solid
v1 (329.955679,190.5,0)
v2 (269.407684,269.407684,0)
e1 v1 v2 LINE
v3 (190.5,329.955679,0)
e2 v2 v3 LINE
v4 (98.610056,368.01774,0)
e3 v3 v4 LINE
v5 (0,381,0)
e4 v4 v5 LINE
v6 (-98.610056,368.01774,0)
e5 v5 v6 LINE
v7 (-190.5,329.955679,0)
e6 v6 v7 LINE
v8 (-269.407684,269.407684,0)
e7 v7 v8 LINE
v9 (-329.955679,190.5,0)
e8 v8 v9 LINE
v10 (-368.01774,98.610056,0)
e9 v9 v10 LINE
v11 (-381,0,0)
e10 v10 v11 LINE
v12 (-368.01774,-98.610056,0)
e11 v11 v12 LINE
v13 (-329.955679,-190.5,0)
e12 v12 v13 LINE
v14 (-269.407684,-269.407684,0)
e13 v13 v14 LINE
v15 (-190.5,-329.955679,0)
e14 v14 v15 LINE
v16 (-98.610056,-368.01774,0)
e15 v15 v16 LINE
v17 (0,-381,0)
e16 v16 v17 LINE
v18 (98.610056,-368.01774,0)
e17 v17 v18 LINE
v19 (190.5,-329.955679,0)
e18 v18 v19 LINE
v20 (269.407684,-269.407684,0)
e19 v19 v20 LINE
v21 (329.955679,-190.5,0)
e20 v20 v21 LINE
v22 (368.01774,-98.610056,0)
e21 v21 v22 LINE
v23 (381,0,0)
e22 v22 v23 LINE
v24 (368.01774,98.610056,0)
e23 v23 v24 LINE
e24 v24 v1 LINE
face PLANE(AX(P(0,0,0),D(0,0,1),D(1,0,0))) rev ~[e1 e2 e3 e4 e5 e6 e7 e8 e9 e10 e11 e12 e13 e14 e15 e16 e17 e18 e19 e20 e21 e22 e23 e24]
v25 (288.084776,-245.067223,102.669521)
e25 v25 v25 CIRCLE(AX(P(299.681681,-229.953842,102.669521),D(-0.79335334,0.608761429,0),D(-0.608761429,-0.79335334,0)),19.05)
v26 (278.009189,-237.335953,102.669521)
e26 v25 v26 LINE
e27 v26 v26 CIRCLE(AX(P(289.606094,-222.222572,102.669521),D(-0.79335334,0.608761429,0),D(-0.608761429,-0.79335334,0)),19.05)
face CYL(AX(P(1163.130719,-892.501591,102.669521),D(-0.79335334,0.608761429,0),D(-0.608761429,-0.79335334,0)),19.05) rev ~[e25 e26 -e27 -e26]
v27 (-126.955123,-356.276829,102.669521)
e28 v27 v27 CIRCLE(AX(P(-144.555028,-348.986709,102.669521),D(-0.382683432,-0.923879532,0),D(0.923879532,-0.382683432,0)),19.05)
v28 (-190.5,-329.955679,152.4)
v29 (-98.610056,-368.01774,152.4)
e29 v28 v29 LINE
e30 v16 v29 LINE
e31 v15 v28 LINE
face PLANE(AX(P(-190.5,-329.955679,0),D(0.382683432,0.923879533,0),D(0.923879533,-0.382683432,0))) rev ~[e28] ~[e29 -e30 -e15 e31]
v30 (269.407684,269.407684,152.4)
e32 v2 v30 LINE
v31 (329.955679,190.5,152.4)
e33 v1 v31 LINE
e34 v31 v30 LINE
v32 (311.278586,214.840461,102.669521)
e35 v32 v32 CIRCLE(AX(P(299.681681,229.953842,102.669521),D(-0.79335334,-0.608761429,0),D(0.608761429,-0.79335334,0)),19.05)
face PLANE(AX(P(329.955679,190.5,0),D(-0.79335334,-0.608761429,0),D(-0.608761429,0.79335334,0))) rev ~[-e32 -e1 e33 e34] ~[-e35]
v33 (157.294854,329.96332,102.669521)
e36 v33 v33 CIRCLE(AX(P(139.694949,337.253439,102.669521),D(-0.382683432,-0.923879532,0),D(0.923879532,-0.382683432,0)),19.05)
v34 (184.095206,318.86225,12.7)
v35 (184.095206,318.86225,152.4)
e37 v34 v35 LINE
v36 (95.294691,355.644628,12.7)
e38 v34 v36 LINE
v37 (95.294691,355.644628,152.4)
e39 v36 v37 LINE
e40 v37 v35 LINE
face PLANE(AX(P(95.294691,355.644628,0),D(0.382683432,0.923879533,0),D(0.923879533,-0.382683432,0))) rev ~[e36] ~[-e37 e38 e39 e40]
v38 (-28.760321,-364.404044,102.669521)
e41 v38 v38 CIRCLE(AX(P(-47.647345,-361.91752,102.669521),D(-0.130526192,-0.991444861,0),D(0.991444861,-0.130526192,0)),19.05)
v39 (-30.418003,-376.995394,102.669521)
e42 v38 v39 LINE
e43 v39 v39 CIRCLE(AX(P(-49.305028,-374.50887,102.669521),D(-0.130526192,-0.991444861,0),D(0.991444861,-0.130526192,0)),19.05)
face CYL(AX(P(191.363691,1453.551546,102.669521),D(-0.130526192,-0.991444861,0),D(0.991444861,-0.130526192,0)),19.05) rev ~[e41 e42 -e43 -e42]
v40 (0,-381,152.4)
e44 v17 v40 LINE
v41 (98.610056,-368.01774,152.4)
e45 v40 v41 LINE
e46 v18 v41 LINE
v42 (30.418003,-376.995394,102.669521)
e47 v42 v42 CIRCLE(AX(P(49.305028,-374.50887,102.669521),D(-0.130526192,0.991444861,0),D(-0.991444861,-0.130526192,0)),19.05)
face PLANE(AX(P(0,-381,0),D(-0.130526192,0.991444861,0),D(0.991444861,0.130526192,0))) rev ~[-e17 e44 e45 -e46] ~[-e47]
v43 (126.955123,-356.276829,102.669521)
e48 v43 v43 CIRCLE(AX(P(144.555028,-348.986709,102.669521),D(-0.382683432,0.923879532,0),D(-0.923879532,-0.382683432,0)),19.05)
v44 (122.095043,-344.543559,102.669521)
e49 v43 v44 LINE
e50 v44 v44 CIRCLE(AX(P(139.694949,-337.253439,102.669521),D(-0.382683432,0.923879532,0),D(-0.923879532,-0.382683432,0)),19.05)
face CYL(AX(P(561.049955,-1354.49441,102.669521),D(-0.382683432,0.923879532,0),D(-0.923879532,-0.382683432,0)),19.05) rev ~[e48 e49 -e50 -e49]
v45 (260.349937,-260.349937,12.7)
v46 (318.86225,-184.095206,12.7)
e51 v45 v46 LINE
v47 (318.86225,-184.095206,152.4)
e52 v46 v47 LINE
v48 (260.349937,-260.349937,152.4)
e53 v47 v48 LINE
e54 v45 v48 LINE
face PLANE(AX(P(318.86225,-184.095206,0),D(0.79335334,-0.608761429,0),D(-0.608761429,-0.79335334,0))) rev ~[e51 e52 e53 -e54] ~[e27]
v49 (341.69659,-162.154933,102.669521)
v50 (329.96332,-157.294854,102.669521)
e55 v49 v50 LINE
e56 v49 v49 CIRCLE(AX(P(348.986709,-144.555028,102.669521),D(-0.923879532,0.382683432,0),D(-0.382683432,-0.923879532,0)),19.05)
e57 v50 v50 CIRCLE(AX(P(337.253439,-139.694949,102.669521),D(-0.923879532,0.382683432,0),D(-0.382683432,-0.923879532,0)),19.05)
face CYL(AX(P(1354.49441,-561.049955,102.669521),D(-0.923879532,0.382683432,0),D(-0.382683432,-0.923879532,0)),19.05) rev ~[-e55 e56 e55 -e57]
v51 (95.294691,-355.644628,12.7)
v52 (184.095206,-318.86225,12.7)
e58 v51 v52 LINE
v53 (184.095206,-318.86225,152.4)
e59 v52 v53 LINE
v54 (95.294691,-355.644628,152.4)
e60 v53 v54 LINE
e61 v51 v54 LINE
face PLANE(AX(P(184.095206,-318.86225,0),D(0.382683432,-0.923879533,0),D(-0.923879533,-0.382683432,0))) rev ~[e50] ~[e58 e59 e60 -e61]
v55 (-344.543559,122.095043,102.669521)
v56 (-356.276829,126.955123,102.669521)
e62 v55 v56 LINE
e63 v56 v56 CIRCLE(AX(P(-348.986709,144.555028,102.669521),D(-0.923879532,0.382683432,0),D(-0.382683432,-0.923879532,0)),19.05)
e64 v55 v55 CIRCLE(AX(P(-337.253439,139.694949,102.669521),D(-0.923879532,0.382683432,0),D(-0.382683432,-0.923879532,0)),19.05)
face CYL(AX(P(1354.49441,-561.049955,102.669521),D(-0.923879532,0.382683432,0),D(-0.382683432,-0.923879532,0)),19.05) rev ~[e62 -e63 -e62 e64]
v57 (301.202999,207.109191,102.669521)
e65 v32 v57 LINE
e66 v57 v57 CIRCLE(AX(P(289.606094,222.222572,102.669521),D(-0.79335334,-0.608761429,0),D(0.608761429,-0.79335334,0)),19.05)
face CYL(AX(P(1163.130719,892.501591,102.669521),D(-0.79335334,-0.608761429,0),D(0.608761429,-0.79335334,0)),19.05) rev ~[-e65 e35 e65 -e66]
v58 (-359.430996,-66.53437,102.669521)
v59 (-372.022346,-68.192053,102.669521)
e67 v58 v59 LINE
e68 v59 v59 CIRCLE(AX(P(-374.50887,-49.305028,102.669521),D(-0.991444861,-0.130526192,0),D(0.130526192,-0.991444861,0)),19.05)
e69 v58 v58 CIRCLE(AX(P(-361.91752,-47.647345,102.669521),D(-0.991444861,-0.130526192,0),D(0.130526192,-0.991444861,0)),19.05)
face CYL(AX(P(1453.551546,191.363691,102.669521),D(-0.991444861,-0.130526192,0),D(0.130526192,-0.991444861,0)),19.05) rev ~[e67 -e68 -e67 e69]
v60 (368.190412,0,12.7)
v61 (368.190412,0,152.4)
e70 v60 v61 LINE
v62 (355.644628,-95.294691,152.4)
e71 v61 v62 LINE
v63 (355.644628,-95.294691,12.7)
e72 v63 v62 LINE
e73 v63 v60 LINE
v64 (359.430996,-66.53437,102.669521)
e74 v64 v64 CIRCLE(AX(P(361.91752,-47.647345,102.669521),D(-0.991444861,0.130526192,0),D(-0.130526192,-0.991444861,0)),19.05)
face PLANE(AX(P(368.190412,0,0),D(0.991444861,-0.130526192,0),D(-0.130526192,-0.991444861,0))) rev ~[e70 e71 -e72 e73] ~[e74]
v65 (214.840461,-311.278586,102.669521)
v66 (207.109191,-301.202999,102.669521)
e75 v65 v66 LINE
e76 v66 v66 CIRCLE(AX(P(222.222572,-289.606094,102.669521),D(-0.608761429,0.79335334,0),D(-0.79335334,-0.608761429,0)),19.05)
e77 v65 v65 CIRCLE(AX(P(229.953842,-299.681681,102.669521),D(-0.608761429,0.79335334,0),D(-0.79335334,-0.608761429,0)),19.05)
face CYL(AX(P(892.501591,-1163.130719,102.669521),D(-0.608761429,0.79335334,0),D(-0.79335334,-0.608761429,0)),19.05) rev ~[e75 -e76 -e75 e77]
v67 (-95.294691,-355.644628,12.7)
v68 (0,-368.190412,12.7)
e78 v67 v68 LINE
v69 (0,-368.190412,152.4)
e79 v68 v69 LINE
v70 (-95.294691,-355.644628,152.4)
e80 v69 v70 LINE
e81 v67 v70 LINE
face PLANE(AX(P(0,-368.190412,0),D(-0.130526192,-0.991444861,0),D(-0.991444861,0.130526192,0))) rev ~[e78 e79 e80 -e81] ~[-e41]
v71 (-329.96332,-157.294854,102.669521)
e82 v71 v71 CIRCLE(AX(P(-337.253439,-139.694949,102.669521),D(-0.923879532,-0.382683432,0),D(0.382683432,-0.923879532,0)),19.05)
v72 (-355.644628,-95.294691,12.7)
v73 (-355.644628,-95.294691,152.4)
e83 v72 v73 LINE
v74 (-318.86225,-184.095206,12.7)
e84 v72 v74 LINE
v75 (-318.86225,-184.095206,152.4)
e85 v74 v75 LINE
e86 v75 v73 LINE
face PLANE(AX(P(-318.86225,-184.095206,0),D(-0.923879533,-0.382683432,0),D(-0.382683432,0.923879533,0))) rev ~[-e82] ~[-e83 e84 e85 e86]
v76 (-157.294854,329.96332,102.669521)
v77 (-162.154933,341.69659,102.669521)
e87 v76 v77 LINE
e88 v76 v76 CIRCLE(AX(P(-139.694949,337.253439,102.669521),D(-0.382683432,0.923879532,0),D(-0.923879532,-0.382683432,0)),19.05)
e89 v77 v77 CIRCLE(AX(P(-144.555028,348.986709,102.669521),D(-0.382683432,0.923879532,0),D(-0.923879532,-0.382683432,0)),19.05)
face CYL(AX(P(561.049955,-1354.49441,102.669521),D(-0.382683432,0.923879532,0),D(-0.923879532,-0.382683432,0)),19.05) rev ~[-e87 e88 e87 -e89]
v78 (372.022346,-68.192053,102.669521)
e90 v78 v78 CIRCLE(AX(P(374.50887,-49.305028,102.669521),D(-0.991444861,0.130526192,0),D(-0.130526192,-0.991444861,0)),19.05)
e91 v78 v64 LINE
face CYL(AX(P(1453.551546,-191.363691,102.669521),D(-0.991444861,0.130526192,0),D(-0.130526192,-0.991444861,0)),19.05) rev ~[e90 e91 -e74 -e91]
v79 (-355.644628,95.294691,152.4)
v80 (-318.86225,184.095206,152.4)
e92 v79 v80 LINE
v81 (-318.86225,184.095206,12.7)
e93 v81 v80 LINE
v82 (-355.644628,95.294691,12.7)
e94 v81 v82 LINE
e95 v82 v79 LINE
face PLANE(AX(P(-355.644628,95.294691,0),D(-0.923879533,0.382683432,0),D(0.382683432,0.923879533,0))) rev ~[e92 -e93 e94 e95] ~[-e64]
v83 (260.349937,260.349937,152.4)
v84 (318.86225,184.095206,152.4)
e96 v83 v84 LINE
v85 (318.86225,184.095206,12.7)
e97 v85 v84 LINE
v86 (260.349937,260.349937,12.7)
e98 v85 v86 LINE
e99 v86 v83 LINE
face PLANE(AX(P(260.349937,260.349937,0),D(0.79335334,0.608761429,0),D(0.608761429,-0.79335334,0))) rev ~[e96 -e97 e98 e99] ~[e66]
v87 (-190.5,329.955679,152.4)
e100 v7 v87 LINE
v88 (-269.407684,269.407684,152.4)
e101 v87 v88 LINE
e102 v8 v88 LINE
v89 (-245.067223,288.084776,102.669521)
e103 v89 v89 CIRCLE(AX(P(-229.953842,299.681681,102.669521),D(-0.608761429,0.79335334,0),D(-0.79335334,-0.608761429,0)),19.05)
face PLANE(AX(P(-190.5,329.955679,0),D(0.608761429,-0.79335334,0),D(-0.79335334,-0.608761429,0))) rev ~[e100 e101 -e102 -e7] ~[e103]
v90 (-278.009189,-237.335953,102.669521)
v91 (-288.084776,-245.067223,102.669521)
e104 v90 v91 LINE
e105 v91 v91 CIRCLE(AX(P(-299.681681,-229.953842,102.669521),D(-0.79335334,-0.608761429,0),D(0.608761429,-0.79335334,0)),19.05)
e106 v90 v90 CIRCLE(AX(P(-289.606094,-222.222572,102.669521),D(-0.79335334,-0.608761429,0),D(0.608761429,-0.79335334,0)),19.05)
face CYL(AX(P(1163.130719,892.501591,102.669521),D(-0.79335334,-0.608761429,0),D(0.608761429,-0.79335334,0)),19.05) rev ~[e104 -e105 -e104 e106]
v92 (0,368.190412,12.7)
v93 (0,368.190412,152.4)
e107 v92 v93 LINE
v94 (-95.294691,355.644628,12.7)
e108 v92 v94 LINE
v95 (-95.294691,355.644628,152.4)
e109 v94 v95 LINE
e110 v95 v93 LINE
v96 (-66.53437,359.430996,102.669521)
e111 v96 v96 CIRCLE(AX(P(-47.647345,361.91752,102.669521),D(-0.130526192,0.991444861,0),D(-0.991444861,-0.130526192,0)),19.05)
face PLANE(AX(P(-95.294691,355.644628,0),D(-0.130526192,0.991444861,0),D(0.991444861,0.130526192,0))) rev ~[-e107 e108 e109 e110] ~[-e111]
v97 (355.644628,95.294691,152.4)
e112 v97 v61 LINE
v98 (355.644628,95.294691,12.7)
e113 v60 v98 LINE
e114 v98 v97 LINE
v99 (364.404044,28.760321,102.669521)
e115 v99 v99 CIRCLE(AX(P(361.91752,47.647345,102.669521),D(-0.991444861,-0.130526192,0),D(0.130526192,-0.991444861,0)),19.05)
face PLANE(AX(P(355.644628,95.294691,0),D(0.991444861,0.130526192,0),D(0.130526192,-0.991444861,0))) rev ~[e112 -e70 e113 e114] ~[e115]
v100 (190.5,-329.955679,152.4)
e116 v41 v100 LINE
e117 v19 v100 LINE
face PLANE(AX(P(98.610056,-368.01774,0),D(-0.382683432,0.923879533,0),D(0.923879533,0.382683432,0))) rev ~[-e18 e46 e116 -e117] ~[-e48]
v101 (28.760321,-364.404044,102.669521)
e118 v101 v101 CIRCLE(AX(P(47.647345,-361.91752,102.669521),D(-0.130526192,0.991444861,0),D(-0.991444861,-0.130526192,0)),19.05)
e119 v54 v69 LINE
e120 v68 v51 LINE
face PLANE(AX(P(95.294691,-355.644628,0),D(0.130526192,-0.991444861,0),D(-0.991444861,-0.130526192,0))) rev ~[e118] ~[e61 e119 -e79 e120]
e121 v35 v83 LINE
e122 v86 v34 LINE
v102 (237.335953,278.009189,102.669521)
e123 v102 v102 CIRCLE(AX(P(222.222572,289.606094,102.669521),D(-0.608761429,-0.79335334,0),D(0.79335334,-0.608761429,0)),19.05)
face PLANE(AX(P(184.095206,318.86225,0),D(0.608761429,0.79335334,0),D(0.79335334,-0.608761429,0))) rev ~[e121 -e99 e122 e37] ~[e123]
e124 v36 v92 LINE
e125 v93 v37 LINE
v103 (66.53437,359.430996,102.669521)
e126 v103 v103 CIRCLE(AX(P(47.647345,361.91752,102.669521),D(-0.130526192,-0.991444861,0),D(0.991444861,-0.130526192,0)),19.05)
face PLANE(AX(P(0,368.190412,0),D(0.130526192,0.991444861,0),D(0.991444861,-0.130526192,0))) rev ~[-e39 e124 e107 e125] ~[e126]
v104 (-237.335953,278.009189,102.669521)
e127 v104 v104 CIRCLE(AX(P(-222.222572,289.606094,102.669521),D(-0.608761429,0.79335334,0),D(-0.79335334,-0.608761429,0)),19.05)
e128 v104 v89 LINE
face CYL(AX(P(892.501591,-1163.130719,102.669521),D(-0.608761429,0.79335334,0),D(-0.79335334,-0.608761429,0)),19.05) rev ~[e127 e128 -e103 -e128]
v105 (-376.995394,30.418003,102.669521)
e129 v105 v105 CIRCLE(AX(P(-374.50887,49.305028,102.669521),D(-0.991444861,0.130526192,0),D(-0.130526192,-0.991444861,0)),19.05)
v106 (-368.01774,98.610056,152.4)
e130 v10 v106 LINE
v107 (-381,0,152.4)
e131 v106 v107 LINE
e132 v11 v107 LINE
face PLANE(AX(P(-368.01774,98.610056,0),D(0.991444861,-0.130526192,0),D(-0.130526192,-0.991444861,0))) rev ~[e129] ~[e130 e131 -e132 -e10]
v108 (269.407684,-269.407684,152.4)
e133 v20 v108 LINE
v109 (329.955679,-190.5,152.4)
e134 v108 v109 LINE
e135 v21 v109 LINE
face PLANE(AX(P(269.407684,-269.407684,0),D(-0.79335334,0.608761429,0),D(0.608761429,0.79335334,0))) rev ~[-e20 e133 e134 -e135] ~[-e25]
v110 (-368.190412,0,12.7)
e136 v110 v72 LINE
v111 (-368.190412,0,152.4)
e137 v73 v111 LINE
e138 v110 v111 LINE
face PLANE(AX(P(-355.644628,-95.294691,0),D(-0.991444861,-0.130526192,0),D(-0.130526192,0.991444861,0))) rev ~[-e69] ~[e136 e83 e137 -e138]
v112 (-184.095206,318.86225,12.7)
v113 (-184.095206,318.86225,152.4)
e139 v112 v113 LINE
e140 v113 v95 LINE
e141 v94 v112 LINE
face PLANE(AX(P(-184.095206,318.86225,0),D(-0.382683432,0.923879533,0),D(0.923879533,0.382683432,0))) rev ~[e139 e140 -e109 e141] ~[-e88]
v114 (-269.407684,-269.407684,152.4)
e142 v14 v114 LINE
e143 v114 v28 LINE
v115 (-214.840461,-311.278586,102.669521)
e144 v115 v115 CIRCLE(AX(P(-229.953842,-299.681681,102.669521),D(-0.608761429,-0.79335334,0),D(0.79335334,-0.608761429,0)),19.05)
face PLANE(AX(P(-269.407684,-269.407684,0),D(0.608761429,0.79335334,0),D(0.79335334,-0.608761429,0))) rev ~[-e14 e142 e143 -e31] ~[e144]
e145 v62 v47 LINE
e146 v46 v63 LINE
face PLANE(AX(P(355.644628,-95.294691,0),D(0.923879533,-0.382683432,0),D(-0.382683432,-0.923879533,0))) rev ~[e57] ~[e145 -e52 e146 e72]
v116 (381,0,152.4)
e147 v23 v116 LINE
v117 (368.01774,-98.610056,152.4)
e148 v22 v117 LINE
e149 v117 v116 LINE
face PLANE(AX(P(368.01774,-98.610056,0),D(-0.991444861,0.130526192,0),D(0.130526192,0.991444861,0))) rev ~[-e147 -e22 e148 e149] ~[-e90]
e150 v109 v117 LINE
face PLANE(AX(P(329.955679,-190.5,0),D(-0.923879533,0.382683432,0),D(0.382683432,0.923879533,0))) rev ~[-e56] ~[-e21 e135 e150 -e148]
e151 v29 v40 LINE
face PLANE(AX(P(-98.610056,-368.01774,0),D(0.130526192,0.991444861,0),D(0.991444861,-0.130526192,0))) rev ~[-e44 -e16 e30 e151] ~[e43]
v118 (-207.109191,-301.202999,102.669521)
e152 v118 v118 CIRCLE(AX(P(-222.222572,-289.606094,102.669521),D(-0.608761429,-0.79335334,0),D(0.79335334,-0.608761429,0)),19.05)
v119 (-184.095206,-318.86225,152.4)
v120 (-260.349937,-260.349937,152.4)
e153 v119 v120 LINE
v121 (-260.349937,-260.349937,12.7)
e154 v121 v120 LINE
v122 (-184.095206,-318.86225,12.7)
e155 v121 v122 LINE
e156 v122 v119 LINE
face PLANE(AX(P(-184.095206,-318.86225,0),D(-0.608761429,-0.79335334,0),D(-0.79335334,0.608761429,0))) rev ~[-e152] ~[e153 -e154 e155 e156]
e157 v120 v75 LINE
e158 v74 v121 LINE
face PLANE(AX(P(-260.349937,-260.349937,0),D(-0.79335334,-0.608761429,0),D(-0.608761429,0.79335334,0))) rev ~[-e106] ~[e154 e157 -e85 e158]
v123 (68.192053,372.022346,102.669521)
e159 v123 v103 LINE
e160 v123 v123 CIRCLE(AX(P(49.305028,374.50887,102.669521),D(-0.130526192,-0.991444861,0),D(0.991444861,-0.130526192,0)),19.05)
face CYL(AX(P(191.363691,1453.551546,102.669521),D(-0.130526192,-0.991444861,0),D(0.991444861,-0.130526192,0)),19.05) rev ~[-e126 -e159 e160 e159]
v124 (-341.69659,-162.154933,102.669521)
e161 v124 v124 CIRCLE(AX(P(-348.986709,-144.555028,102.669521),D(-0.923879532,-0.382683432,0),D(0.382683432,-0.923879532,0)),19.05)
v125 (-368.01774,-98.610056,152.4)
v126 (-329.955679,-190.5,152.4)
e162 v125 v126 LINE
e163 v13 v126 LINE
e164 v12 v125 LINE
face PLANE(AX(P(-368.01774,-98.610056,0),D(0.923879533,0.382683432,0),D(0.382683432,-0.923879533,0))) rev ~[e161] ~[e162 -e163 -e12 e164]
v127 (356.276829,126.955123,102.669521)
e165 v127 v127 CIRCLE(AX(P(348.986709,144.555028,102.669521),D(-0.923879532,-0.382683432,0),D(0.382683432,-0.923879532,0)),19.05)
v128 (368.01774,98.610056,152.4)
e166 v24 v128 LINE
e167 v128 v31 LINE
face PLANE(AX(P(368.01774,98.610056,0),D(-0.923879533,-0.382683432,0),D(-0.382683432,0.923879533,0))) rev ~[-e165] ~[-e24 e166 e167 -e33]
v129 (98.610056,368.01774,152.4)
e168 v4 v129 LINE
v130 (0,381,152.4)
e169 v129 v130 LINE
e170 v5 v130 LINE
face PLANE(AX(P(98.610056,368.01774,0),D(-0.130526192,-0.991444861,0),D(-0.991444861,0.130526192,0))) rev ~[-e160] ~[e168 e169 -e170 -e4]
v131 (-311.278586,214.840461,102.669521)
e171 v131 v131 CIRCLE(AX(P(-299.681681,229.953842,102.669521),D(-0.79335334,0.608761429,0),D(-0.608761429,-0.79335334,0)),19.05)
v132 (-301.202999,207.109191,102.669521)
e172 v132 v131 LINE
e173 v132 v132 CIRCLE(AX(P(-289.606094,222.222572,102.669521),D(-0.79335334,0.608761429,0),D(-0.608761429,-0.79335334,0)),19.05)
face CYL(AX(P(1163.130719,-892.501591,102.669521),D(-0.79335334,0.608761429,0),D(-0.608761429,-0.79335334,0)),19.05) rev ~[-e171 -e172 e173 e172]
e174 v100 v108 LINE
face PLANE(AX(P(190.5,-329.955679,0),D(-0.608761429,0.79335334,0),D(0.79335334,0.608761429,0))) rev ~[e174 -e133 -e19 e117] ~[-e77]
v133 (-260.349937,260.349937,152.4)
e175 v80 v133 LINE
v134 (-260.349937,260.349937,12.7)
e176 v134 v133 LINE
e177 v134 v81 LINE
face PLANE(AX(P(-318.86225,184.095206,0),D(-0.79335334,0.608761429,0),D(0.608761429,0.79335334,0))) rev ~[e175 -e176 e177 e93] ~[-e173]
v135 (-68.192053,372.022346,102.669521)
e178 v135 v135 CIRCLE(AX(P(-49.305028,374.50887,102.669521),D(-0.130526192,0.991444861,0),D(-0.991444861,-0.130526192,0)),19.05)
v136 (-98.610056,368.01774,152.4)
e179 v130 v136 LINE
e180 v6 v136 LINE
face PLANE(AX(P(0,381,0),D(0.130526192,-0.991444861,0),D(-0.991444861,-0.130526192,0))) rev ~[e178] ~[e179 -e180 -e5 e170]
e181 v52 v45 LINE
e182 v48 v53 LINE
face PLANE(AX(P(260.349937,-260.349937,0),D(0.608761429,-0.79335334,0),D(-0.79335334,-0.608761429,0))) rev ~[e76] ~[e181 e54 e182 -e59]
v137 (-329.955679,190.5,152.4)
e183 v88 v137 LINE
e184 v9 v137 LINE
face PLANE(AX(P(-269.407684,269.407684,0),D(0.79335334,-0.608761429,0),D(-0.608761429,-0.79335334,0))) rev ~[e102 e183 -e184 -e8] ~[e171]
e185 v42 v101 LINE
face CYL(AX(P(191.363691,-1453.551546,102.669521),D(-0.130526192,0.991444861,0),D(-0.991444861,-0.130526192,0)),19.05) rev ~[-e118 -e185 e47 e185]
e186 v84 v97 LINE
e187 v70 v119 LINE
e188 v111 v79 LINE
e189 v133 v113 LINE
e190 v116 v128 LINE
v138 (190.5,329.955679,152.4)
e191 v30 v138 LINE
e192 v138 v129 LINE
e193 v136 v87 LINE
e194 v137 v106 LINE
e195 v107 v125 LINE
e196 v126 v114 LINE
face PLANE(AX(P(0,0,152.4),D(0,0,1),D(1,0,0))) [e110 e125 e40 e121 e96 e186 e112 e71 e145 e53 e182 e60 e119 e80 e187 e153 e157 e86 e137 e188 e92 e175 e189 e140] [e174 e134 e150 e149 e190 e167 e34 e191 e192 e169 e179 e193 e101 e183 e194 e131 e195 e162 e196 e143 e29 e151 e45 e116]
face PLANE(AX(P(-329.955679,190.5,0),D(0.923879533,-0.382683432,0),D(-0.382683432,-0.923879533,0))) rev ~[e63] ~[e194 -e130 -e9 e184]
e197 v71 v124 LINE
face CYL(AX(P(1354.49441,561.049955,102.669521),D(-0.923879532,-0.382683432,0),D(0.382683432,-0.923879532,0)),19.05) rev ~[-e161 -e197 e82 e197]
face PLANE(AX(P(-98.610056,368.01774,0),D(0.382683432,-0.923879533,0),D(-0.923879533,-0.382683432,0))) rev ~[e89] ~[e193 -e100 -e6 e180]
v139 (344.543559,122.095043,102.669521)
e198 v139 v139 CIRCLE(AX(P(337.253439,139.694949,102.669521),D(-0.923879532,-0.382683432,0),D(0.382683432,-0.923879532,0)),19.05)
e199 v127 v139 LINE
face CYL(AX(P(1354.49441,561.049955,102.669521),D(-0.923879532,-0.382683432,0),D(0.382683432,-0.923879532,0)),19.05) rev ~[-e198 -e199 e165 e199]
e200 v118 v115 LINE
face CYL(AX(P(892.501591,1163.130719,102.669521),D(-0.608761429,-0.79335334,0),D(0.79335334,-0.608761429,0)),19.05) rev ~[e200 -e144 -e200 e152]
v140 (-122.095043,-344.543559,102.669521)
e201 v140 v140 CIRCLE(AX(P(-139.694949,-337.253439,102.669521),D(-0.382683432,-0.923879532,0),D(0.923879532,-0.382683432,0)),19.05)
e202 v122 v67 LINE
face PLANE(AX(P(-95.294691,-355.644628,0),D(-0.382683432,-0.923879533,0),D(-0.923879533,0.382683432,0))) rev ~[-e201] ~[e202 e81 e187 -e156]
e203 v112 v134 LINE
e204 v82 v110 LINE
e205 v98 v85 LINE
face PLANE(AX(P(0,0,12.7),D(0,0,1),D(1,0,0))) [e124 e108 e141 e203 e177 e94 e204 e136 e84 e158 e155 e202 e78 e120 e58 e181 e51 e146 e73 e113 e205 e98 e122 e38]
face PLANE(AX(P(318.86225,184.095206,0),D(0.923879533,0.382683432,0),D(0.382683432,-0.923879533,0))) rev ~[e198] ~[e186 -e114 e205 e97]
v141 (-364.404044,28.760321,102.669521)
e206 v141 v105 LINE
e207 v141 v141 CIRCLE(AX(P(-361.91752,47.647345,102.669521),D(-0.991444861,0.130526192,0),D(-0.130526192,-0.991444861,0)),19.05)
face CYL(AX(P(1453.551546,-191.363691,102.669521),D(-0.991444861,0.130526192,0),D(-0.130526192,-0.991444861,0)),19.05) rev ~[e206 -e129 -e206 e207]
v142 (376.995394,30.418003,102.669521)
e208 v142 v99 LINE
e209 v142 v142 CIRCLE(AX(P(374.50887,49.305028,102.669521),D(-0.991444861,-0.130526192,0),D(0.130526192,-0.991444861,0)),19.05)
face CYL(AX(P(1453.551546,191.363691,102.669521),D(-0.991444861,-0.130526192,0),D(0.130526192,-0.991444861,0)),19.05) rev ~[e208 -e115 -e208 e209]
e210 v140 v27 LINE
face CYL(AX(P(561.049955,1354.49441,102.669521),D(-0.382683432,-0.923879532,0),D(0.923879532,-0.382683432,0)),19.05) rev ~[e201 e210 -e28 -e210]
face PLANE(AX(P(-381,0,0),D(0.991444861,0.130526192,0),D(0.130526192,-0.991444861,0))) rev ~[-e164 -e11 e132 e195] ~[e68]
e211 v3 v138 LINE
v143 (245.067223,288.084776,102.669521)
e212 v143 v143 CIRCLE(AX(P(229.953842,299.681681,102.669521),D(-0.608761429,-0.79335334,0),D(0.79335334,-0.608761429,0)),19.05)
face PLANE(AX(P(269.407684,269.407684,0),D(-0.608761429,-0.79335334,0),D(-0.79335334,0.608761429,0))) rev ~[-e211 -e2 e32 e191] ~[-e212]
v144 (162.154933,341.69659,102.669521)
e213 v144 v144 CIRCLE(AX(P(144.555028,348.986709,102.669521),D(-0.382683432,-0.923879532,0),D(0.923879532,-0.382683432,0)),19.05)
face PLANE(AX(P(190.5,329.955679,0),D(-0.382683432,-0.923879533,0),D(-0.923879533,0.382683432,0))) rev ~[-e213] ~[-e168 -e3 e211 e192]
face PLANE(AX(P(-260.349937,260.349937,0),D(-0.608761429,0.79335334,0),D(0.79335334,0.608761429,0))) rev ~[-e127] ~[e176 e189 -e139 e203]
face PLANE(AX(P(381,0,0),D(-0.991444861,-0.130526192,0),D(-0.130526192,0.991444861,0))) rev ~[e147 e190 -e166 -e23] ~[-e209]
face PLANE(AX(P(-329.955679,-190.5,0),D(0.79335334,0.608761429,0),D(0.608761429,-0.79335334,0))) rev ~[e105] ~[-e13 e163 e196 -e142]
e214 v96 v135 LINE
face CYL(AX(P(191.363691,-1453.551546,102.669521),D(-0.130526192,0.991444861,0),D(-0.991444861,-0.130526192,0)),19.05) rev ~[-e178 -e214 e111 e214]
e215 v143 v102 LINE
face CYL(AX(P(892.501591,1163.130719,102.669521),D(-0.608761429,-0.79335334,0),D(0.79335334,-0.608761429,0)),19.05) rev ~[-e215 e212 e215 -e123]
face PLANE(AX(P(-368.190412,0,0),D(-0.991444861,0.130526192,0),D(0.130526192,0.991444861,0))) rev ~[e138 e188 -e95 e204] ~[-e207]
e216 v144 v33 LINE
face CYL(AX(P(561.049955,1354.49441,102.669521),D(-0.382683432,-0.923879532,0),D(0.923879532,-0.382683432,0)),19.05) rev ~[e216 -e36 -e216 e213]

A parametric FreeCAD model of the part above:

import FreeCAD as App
import Part
import Sketcher

V = App.Vector
Q = App.Units.Quantity

doc = App.newDocument("Part")
body = doc.addObject("PartDesign::Body", "Body")

sketch1 = doc.addObject("Sketcher::SketchObject", "Sketch")
body.addObject(sketch1)
sketch1.AttachmentSupport = (doc.XY_Plane, [""])
sketch1.MapMode = "FlatFace"
sketch1.addGeometry(Part.LineSegment(V(98.610056, 368.01774, 0), V(0, 381, 0)), False)
sketch1.addGeometry(Part.LineSegment(V(0, 381, 0), V(-98.610056, 368.01774, 0)), False)
sketch1.addGeometry(Part.LineSegment(V(-98.610056, 368.01774, 0), V(-190.5, 329.955679, 0)), False)
sketch1.addGeometry(Part.LineSegment(V(-190.5, 329.955679, 0), V(-269.407684, 269.407684, 0)), False)
sketch1.addGeometry(Part.LineSegment(V(-269.407684, 269.407684, 0), V(-329.955679, 190.5, 0)), False)
sketch1.addGeometry(Part.LineSegment(V(-329.955679, 190.5, 0), V(-368.01774, 98.610056, 0)), False)
sketch1.addGeometry(Part.LineSegment(V(-368.01774, 98.610056, 0), V(-381, 0, 0)), False)
sketch1.addGeometry(Part.LineSegment(V(-381, 0, 0), V(-368.01774, -98.610056, 0)), False)
sketch1.addGeometry(Part.LineSegment(V(-368.01774, -98.610056, 0), V(-329.955679, -190.5, 0)), False)
sketch1.addGeometry(Part.LineSegment(V(-329.955679, -190.5, 0), V(-269.407684, -269.407684, 0)), False)
sketch1.addGeometry(Part.LineSegment(V(-269.407684, -269.407684, 0), V(-190.5, -329.955679, 0)), False)
sketch1.addGeometry(Part.LineSegment(V(-190.5, -329.955679, 0), V(-98.610056, -368.01774, 0)), False)
sketch1.addGeometry(Part.LineSegment(V(-98.610056, -368.01774, 0), V(0, -381, 0)), False)
sketch1.addGeometry(Part.LineSegment(V(0, -381, 0), V(98.610056, -368.01774, 0)), False)
sketch1.addGeometry(Part.LineSegment(V(98.610056, -368.01774, 0), V(190.5, -329.955679, 0)), False)
sketch1.addGeometry(Part.LineSegment(V(190.5, -329.955679, 0), V(269.407684, -269.407684, 0)), False)
sketch1.addGeometry(Part.LineSegment(V(269.407684, -269.407684, 0), V(329.955679, -190.5, 0)), False)
sketch1.addGeometry(Part.LineSegment(V(329.955679, -190.5, 0), V(368.01774, -98.610056, 0)), False)
sketch1.addGeometry(Part.LineSegment(V(368.01774, -98.610056, 0), V(381, 0, 0)), False)
sketch1.addGeometry(Part.LineSegment(V(381, 0, 0), V(368.01774, 98.610056, 0)), False)
sketch1.addGeometry(Part.LineSegment(V(368.01774, 98.610056, 0), V(329.955679, 190.5, 0)), False)
sketch1.addGeometry(Part.LineSegment(V(329.955679, 190.5, 0), V(269.407684, 269.407684, 0)), False)
sketch1.addGeometry(Part.LineSegment(V(269.407684, 269.407684, 0), V(190.5, 329.955679, 0)), False)
sketch1.addGeometry(Part.LineSegment(V(190.5, 329.955679, 0), V(98.610056, 368.01774, 0)), False)
sketch1.addGeometry(Part.LineSegment(V(-184.095206, 318.86225, 0), V(-95.294691, 355.644628, 0)), False)
sketch1.addGeometry(Part.LineSegment(V(-95.294691, 355.644628, 0), V(0, 368.190412, 0)), False)
sketch1.addGeometry(Part.LineSegment(V(0, 368.190412, 0), V(95.294691, 355.644628, 0)), False)
sketch1.addGeometry(Part.LineSegment(V(95.294691, 355.644628, 0), V(184.095206, 318.86225, 0)), False)
sketch1.addGeometry(Part.LineSegment(V(184.095206, 318.86225, 0), V(260.349937, 260.349937, 0)), False)
sketch1.addGeometry(Part.LineSegment(V(260.349937, 260.349937, 0), V(318.86225, 184.095206, 0)), False)
sketch1.addGeometry(Part.LineSegment(V(318.86225, 184.095206, 0), V(355.644628, 95.294691, 0)), False)
sketch1.addGeometry(Part.LineSegment(V(355.644628, 95.294691, 0), V(368.190412, 0, 0)), False)
sketch1.addGeometry(Part.LineSegment(V(368.190412, 0, 0), V(355.644628, -95.294691, 0)), False)
sketch1.addGeometry(Part.LineSegment(V(355.644628, -95.294691, 0), V(318.86225, -184.095206, 0)), False)
sketch1.addGeometry(Part.LineSegment(V(318.86225, -184.095206, 0), V(260.349937, -260.349937, 0)), False)
sketch1.addGeometry(Part.LineSegment(V(260.349937, -260.349937, 0), V(184.095206, -318.86225, 0)), False)
sketch1.addGeometry(Part.LineSegment(V(184.095206, -318.86225, 0), V(95.294691, -355.644628, 0)), False)
sketch1.addGeometry(Part.LineSegment(V(95.294691, -355.644628, 0), V(0, -368.190412, 0)), False)
sketch1.addGeometry(Part.LineSegment(V(0, -368.190412, 0), V(-95.294691, -355.644628, 0)), False)
sketch1.addGeometry(Part.LineSegment(V(-95.294691, -355.644628, 0), V(-184.095206, -318.86225, 0)), False)
sketch1.addGeometry(Part.LineSegment(V(-184.095206, -318.86225, 0), V(-260.349937, -260.349937, 0)), False)
sketch1.addGeometry(Part.LineSegment(V(-260.349937, -260.349937, 0), V(-318.86225, -184.095206, 0)), False)
sketch1.addGeometry(Part.LineSegment(V(-318.86225, -184.095206, 0), V(-355.644628, -95.294691, 0)), False)
sketch1.addGeometry(Part.LineSegment(V(-355.644628, -95.294691, 0), V(-368.190412, 0, 0)), False)
sketch1.addGeometry(Part.LineSegment(V(-368.190412, 0, 0), V(-355.644628, 95.294691, 0)), False)
sketch1.addGeometry(Part.LineSegment(V(-355.644628, 95.294691, 0), V(-318.86225, 184.095206, 0)), False)
sketch1.addGeometry(Part.LineSegment(V(-318.86225, 184.095206, 0), V(-260.349937, 260.349937, 0)), False)
sketch1.addGeometry(Part.LineSegment(V(-260.349937, 260.349937, 0), V(-184.095206, 318.86225, 0)), False)
sketch1.addConstraint(Sketcher.Constraint("Coincident", 0, 2, 1, 1))
sketch1.addConstraint(Sketcher.Constraint("Coincident", 1, 2, 2, 1))
sketch1.addConstraint(Sketcher.Constraint("Coincident", 2, 2, 3, 1))
sketch1.addConstraint(Sketcher.Constraint("Coincident", 3, 2, 4, 1))
sketch1.addConstraint(Sketcher.Constraint("Coincident", 4, 2, 5, 1))
sketch1.addConstraint(Sketcher.Constraint("Coincident", 5, 2, 6, 1))
sketch1.addConstraint(Sketcher.Constraint("Coincident", 6, 2, 7, 1))
sketch1.addConstraint(Sketcher.Constraint("Coincident", 7, 2, 8, 1))
sketch1.addConstraint(Sketcher.Constraint("Coincident", 8, 2, 9, 1))
sketch1.addConstraint(Sketcher.Constraint("Coincident", 9, 2, 10, 1))
sketch1.addConstraint(Sketcher.Constraint("Coincident", 10, 2, 11, 1))
sketch1.addConstraint(Sketcher.Constraint("Coincident", 11, 2, 12, 1))
sketch1.addConstraint(Sketcher.Constraint("Coincident", 12, 2, 13, 1))
sketch1.addConstraint(Sketcher.Constraint("Coincident", 13, 2, 14, 1))
sketch1.addConstraint(Sketcher.Constraint("Coincident", 14, 2, 15, 1))
sketch1.addConstraint(Sketcher.Constraint("Coincident", 15, 2, 16, 1))
sketch1.addConstraint(Sketcher.Constraint("Coincident", 16, 2, 17, 1))
sketch1.addConstraint(Sketcher.Constraint("Coincident", 17, 2, 18, 1))
sketch1.addConstraint(Sketcher.Constraint("Coincident", 18, 2, 19, 1))
sketch1.addConstraint(Sketcher.Constraint("Coincident", 19, 2, 20, 1))
sketch1.addConstraint(Sketcher.Constraint("Coincident", 20, 2, 21, 1))
sketch1.addConstraint(Sketcher.Constraint("Coincident", 21, 2, 22, 1))
sketch1.addConstraint(Sketcher.Constraint("Coincident", 22, 2, 23, 1))
sketch1.addConstraint(Sketcher.Constraint("Coincident", 23, 2, 0, 1))
sketch1.addConstraint(Sketcher.Constraint("Coincident", 24, 2, 25, 1))
sketch1.addConstraint(Sketcher.Constraint("Coincident", 25, 2, 26, 1))
sketch1.addConstraint(Sketcher.Constraint("Coincident", 26, 2, 27, 1))
sketch1.addConstraint(Sketcher.Constraint("Coincident", 27, 2, 28, 1))
sketch1.addConstraint(Sketcher.Constraint("Coincident", 28, 2, 29, 1))
sketch1.addConstraint(Sketcher.Constraint("Coincident", 29, 2, 30, 1))
sketch1.addConstraint(Sketcher.Constraint("Coincident", 30, 2, 31, 1))
sketch1.addConstraint(Sketcher.Constraint("Coincident", 31, 2, 32, 1))
sketch1.addConstraint(Sketcher.Constraint("Coincident", 32, 2, 33, 1))
sketch1.addConstraint(Sketcher.Constraint("Coincident", 33, 2, 34, 1))
sketch1.addConstraint(Sketcher.Constraint("Coincident", 34, 2, 35, 1))
sketch1.addConstraint(Sketcher.Constraint("Coincident", 35, 2, 36, 1))
sketch1.addConstraint(Sketcher.Constraint("Coincident", 36, 2, 37, 1))
sketch1.addConstraint(Sketcher.Constraint("Coincident", 37, 2, 38, 1))
sketch1.addConstraint(Sketcher.Constraint("Coincident", 38, 2, 39, 1))
sketch1.addConstraint(Sketcher.Constraint("Coincident", 39, 2, 40, 1))
sketch1.addConstraint(Sketcher.Constraint("Coincident", 40, 2, 41, 1))
sketch1.addConstraint(Sketcher.Constraint("Coincident", 41, 2, 42, 1))
sketch1.addConstraint(Sketcher.Constraint("Coincident", 42, 2, 43, 1))
sketch1.addConstraint(Sketcher.Constraint("Coincident", 43, 2, 44, 1))
sketch1.addConstraint(Sketcher.Constraint("Coincident", 44, 2, 45, 1))
sketch1.addConstraint(Sketcher.Constraint("Coincident", 45, 2, 46, 1))
sketch1.addConstraint(Sketcher.Constraint("Coincident", 46, 2, 47, 1))
sketch1.addConstraint(Sketcher.Constraint("Coincident", 47, 2, 24, 1))
sketch1.addConstraint(Sketcher.Constraint("Symmetric", 0, 2, 12, 2, -1, 1))
sketch1.addConstraint(Sketcher.Constraint("Symmetric", 1, 2, 13, 2, -1, 1))
sketch1.addConstraint(Sketcher.Constraint("Symmetric", 2, 2, 14, 2, -1, 1))
sketch1.addConstraint(Sketcher.Constraint("Symmetric", 3, 2, 15, 2, -1, 1))
sketch1.addConstraint(Sketcher.Constraint("Symmetric", 4, 2, 16, 2, -1, 1))
sketch1.addConstraint(Sketcher.Constraint("Symmetric", 5, 2, 17, 2, -1, 1))
sketch1.addConstraint(Sketcher.Constraint("Symmetric", 6, 2, 18, 2, -1, 1))
sketch1.addConstraint(Sketcher.Constraint("Symmetric", 7, 2, 19, 2, -1, 1))
sketch1.addConstraint(Sketcher.Constraint("Symmetric", 8, 2, 20, 2, -1, 1))
sketch1.addConstraint(Sketcher.Constraint("Symmetric", 9, 2, 21, 2, -1, 1))
sketch1.addConstraint(Sketcher.Constraint("Symmetric", 10, 2, 22, 2, -1, 1))
sketch1.addConstraint(Sketcher.Constraint("Symmetric", 11, 2, 23, 2, -1, 1))
sketch1.addConstraint(Sketcher.Constraint("Symmetric", 24, 2, 36, 2, -1, 1))
sketch1.addConstraint(Sketcher.Constraint("Symmetric", 25, 2, 37, 2, -1, 1))
sketch1.addConstraint(Sketcher.Constraint("Symmetric", 26, 2, 38, 2, -1, 1))
sketch1.addConstraint(Sketcher.Constraint("Symmetric", 27, 2, 39, 2, -1, 1))
sketch1.addConstraint(Sketcher.Constraint("Symmetric", 28, 2, 40, 2, -1, 1))
sketch1.addConstraint(Sketcher.Constraint("Symmetric", 29, 2, 41, 2, -1, 1))
sketch1.addConstraint(Sketcher.Constraint("Symmetric", 30, 2, 42, 2, -1, 1))
sketch1.addConstraint(Sketcher.Constraint("Symmetric", 31, 2, 43, 2, -1, 1))
sketch1.addConstraint(Sketcher.Constraint("Symmetric", 32, 2, 44, 2, -1, 1))
sketch1.addConstraint(Sketcher.Constraint("Symmetric", 33, 2, 45, 2, -1, 1))
sketch1.addConstraint(Sketcher.Constraint("Symmetric", 34, 2, 46, 2, -1, 1))
sketch1.addConstraint(Sketcher.Constraint("Symmetric", 35, 2, 47, 2, -1, 1))
sketch1.addConstraint(Sketcher.Constraint("Symmetric", 11, 2, 13, 2, -2))
sketch1.addConstraint(Sketcher.Constraint("Symmetric", 10, 2, 14, 2, -2))
sketch1.addConstraint(Sketcher.Constraint("Symmetric", 9, 2, 15, 2, -2))
sketch1.addConstraint(Sketcher.Constraint("Symmetric", 8, 2, 16, 2, -2))
sketch1.addConstraint(Sketcher.Constraint("Symmetric", 7, 2, 17, 2, -2))
sketch1.addConstraint(Sketcher.Constraint("Symmetric", 24, 2, 26, 2, -2))
sketch1.addConstraint(Sketcher.Constraint("Symmetric", 35, 2, 39, 2, -2))
sketch1.addConstraint(Sketcher.Constraint("Symmetric", 34, 2, 40, 2, -2))
sketch1.addConstraint(Sketcher.Constraint("Symmetric", 33, 2, 41, 2, -2))
sketch1.addConstraint(Sketcher.Constraint("Symmetric", 32, 2, 42, 2, -2))
sketch1.addConstraint(Sketcher.Constraint("PointOnObject", 0, 2, -2))
sketch1.addConstraint(Sketcher.Constraint("PointOnObject", 6, 2, -1))
sketch1.addConstraint(Sketcher.Constraint("PointOnObject", 25, 2, -2))
sketch1.addConstraint(Sketcher.Constraint("PointOnObject", 31, 2, -1))
sketch1.addConstraint(Sketcher.Constraint("Perpendicular", 0, 6))
sketch1.addConstraint(Sketcher.Constraint("Perpendicular", 2, 8))
sketch1.addConstraint(Sketcher.Constraint("Perpendicular", 3, 9))
sketch1.addConstraint(Sketcher.Constraint("Perpendicular", 20, 24))
sketch1.addConstraint(Sketcher.Constraint("Perpendicular", 19, 25))
sketch1.addConstraint(Sketcher.Constraint("Parallel", 22, 28))
sketch1.addConstraint(Sketcher.Constraint("Parallel", 21, 29))
sketch1.addConstraint(Sketcher.Constraint("Perpendicular", 24, 30))
sketch1.addConstraint(Sketcher.Constraint("Perpendicular", 25, 31))
sketch1.addConstraint(Sketcher.Constraint("Equal", 1, 2))
sketch1.addConstraint(Sketcher.Constraint("Equal", 2, 3))
sketch1.addConstraint(Sketcher.Constraint("Equal", 3, 4))
sketch1.addConstraint(Sketcher.Constraint("Equal", 4, 5))
sketch1.addConstraint(Sketcher.Constraint("Equal", 5, 6))
sketch1.addConstraint(Sketcher.Constraint("Equal", 24, 25))
sketch1.addConstraint(Sketcher.Constraint("Equal", 27, 28))
sketch1.addConstraint(Sketcher.Constraint("Equal", 28, 29))
sketch1.addConstraint(Sketcher.Constraint("Equal", 29, 30))
sketch1.addConstraint(Sketcher.Constraint("Equal", 30, 31))
sketch1.addConstraint(Sketcher.Constraint("DistanceY", -1, 1, 0, 2, Q("15 in")))
sketch1.addConstraint(Sketcher.Constraint("DistanceY", 8, 2, 4, 2, Q("15 in")))
sketch1.addConstraint(Sketcher.Constraint("Angle", 0, Q("172.5 deg")))
sketch1.addConstraint(Sketcher.Constraint("Angle", 2, Q("-157.5 deg")))
sketch1.addConstraint(Sketcher.Constraint("DistanceX", 24, 2, -1, 1, 95.294691))
pad1 = doc.addObject("PartDesign::Pad", "Pad")
body.addObject(pad1)
pad1.Profile = sketch1
pad1.Length = Q("6 in")

sketch2 = doc.addObject("Sketcher::SketchObject", "Sketch001")
body.addObject(sketch2)
sketch2.AttachmentSupport = (doc.XY_Plane, [""])
sketch2.MapMode = "FlatFace"
sketch2.addGeometry(Part.LineSegment(V(95.294691, 355.644628, 0), V(0, 368.190412, 0)), False)
sketch2.addGeometry(Part.LineSegment(V(0, 368.190412, 0), V(-95.294691, 355.644628, 0)), False)
sketch2.addGeometry(Part.LineSegment(V(-95.294691, 355.644628, 0), V(-184.095206, 318.86225, 0)), False)
sketch2.addGeometry(Part.LineSegment(V(-184.095206, 318.86225, 0), V(-260.349937, 260.349937, 0)), False)
sketch2.addGeometry(Part.LineSegment(V(-260.349937, 260.349937, 0), V(-318.86225, 184.095206, 0)), False)
sketch2.addGeometry(Part.LineSegment(V(-318.86225, 184.095206, 0), V(-355.644628, 95.294691, 0)), False)
sketch2.addGeometry(Part.LineSegment(V(-355.644628, 95.294691, 0), V(-368.190412, 0, 0)), False)
sketch2.addGeometry(Part.LineSegment(V(-368.190412, 0, 0), V(-355.644628, -95.294691, 0)), False)
sketch2.addGeometry(Part.LineSegment(V(-355.644628, -95.294691, 0), V(-318.86225, -184.095206, 0)), False)
sketch2.addGeometry(Part.LineSegment(V(-318.86225, -184.095206, 0), V(-260.349937, -260.349937, 0)), False)
sketch2.addGeometry(Part.LineSegment(V(-260.349937, -260.349937, 0), V(-184.095206, -318.86225, 0)), False)
sketch2.addGeometry(Part.LineSegment(V(-184.095206, -318.86225, 0), V(-95.294691, -355.644628, 0)), False)
sketch2.addGeometry(Part.LineSegment(V(-95.294691, -355.644628, 0), V(0, -368.190412, 0)), False)
sketch2.addGeometry(Part.LineSegment(V(0, -368.190412, 0), V(95.294691, -355.644628, 0)), False)
sketch2.addGeometry(Part.LineSegment(V(95.294691, -355.644628, 0), V(184.095206, -318.86225, 0)), False)
sketch2.addGeometry(Part.LineSegment(V(184.095206, -318.86225, 0), V(260.349937, -260.349937, 0)), False)
sketch2.addGeometry(Part.LineSegment(V(260.349937, -260.349937, 0), V(318.86225, -184.095206, 0)), False)
sketch2.addGeometry(Part.LineSegment(V(318.86225, -184.095206, 0), V(355.644628, -95.294691, 0)), False)
sketch2.addGeometry(Part.LineSegment(V(355.644628, -95.294691, 0), V(368.190412, 0, 0)), False)
sketch2.addGeometry(Part.LineSegment(V(368.190412, 0, 0), V(355.644628, 95.294691, 0)), False)
sketch2.addGeometry(Part.LineSegment(V(355.644628, 95.294691, 0), V(318.86225, 184.095206, 0)), False)
sketch2.addGeometry(Part.LineSegment(V(318.86225, 184.095206, 0), V(260.349937, 260.349937, 0)), False)
sketch2.addGeometry(Part.LineSegment(V(260.349937, 260.349937, 0), V(184.095206, 318.86225, 0)), False)
sketch2.addGeometry(Part.LineSegment(V(184.095206, 318.86225, 0), V(95.294691, 355.644628, 0)), False)
sketch2.addConstraint(Sketcher.Constraint("Coincident", 0, 2, 1, 1))
sketch2.addConstraint(Sketcher.Constraint("Coincident", 1, 2, 2, 1))
sketch2.addConstraint(Sketcher.Constraint("Coincident", 2, 2, 3, 1))
sketch2.addConstraint(Sketcher.Constraint("Coincident", 3, 2, 4, 1))
sketch2.addConstraint(Sketcher.Constraint("Coincident", 4, 2, 5, 1))
sketch2.addConstraint(Sketcher.Constraint("Coincident", 5, 2, 6, 1))
sketch2.addConstraint(Sketcher.Constraint("Coincident", 6, 2, 7, 1))
sketch2.addConstraint(Sketcher.Constraint("Coincident", 7, 2, 8, 1))
sketch2.addConstraint(Sketcher.Constraint("Coincident", 8, 2, 9, 1))
sketch2.addConstraint(Sketcher.Constraint("Coincident", 9, 2, 10, 1))
sketch2.addConstraint(Sketcher.Constraint("Coincident", 10, 2, 11, 1))
sketch2.addConstraint(Sketcher.Constraint("Coincident", 11, 2, 12, 1))
sketch2.addConstraint(Sketcher.Constraint("Coincident", 12, 2, 13, 1))
sketch2.addConstraint(Sketcher.Constraint("Coincident", 13, 2, 14, 1))
sketch2.addConstraint(Sketcher.Constraint("Coincident", 14, 2, 15, 1))
sketch2.addConstraint(Sketcher.Constraint("Coincident", 15, 2, 16, 1))
sketch2.addConstraint(Sketcher.Constraint("Coincident", 16, 2, 17, 1))
sketch2.addConstraint(Sketcher.Constraint("Coincident", 17, 2, 18, 1))
sketch2.addConstraint(Sketcher.Constraint("Coincident", 18, 2, 19, 1))
sketch2.addConstraint(Sketcher.Constraint("Coincident", 19, 2, 20, 1))
sketch2.addConstraint(Sketcher.Constraint("Coincident", 20, 2, 21, 1))
sketch2.addConstraint(Sketcher.Constraint("Coincident", 21, 2, 22, 1))
sketch2.addConstraint(Sketcher.Constraint("Coincident", 22, 2, 23, 1))
sketch2.addConstraint(Sketcher.Constraint("Coincident", 23, 2, 0, 1))
sketch2.addConstraint(Sketcher.Constraint("Symmetric", 0, 2, 12, 2, -1, 1))
sketch2.addConstraint(Sketcher.Constraint("Symmetric", 1, 2, 13, 2, -1, 1))
sketch2.addConstraint(Sketcher.Constraint("Symmetric", 2, 2, 14, 2, -1, 1))
sketch2.addConstraint(Sketcher.Constraint("Symmetric", 3, 2, 15, 2, -1, 1))
sketch2.addConstraint(Sketcher.Constraint("Symmetric", 4, 2, 16, 2, -1, 1))
sketch2.addConstraint(Sketcher.Constraint("Symmetric", 5, 2, 17, 2, -1, 1))
sketch2.addConstraint(Sketcher.Constraint("Symmetric", 6, 2, 18, 2, -1, 1))
sketch2.addConstraint(Sketcher.Constraint("Symmetric", 7, 2, 19, 2, -1, 1))
sketch2.addConstraint(Sketcher.Constraint("Symmetric", 8, 2, 20, 2, -1, 1))
sketch2.addConstraint(Sketcher.Constraint("Symmetric", 9, 2, 21, 2, -1, 1))
sketch2.addConstraint(Sketcher.Constraint("Symmetric", 10, 2, 22, 2, -1, 1))
sketch2.addConstraint(Sketcher.Constraint("Symmetric", 11, 2, 23, 2, -1, 1))
sketch2.addConstraint(Sketcher.Constraint("Symmetric", 11, 2, 13, 2, -2))
sketch2.addConstraint(Sketcher.Constraint("Symmetric", 10, 2, 14, 2, -2))
sketch2.addConstraint(Sketcher.Constraint("Symmetric", 9, 2, 15, 2, -2))
sketch2.addConstraint(Sketcher.Constraint("Symmetric", 8, 2, 16, 2, -2))
sketch2.addConstraint(Sketcher.Constraint("Symmetric", 7, 2, 17, 2, -2))
sketch2.addConstraint(Sketcher.Constraint("PointOnObject", 0, 2, -2))
sketch2.addConstraint(Sketcher.Constraint("PointOnObject", 6, 2, -1))
sketch2.addConstraint(Sketcher.Constraint("Perpendicular", 0, 6))
sketch2.addConstraint(Sketcher.Constraint("Perpendicular", 2, 8))
sketch2.addConstraint(Sketcher.Constraint("Perpendicular", 3, 9))
sketch2.addConstraint(Sketcher.Constraint("Equal", 1, 2))
sketch2.addConstraint(Sketcher.Constraint("Equal", 2, 3))
sketch2.addConstraint(Sketcher.Constraint("Equal", 3, 4))
sketch2.addConstraint(Sketcher.Constraint("Equal", 4, 5))
sketch2.addConstraint(Sketcher.Constraint("Equal", 5, 6))
sketch2.addConstraint(Sketcher.Constraint("Angle", 0, Q("172.5 deg")))
sketch2.addConstraint(Sketcher.Constraint("Angle", 2, Q("-157.5 deg")))
sketch2.addConstraint(Sketcher.Constraint("Angle", 3, Q("-142.5 deg")))
sketch2.addConstraint(Sketcher.Constraint("DistanceX", 1, 2, -1, 1, 95.294691))
pad2 = doc.addObject("PartDesign::Pad", "Pad001")
body.addObject(pad2)
pad2.Profile = sketch2
pad2.Length = Q("0.5 in")

sketch3 = doc.addObject("Sketcher::SketchObject", "Sketch002")
body.addObject(sketch3)
sketch3.Placement = App.Placement(V(49.305028, 374.50887, 0), App.Rotation(V(-0.991444861, 0.130526192, 0), V(0, 0, 0.999999999), V(0.130526192, 0.991444861, 0), "ZXY"))
sketch3.addGeometry(Part.Circle(V(0, 102.669521, 0), V(0, 0, 1), 19.05), False)
sketch3.addConstraint(Sketcher.Constraint("PointOnObject", 0, 3, -2))
sketch3.addConstraint(Sketcher.Constraint("Diameter", 0, Q("1.5 in")))
sketch3.addConstraint(Sketcher.Constraint("DistanceY", -1, 1, 0, 3, 102.669521))
doc.recompute()
hole = doc.addObject("PartDesign::Hole", "Hole")
body.addObject(hole)
hole.Profile = sketch3
hole.ThreadType = "None"
hole.Diameter = Q("1.5 in")
hole.DepthType = "ThroughAll"

sketch4 = doc.addObject("Sketcher::SketchObject", "Sketch003")
body.addObject(sketch4)
sketch4.Placement = App.Placement(V(144.555028, 348.986709, 0), App.Rotation(V(-0.923879532, 0.382683432, 0), V(0, 0, 0.999999999), V(0.382683432, 0.923879532, 0), "ZXY"))
sketch4.addGeometry(Part.Circle(V(0, 102.669521, 0), V(0, 0, 1), 19.05), False)
sketch4.addConstraint(Sketcher.Constraint("PointOnObject", 0, 3, -2))
sketch4.addConstraint(Sketcher.Constraint("Diameter", 0, Q("1.5 in")))
sketch4.addConstraint(Sketcher.Constraint("DistanceY", -1, 1, 0, 3, 102.669521))
doc.recompute()
hole2 = doc.addObject("PartDesign::Hole", "Hole001")
body.addObject(hole2)
hole2.Profile = sketch4
hole2.ThreadType = "None"
hole2.Diameter = Q("1.5 in")
hole2.DepthType = "ThroughAll"

sketch5 = doc.addObject("Sketcher::SketchObject", "Sketch004")
body.addObject(sketch5)
sketch5.Placement = App.Placement(V(229.953842, 299.681681, 0), App.Rotation(V(-0.79335334, 0.608761429, 0), V(0, 0, 1), V(0.608761429, 0.79335334, 0), "ZXY"))
sketch5.addGeometry(Part.Circle(V(0, 102.669521, 0), V(0, 0, 1), 19.05), False)
sketch5.addConstraint(Sketcher.Constraint("PointOnObject", 0, 3, -2))
sketch5.addConstraint(Sketcher.Constraint("Diameter", 0, Q("1.5 in")))
sketch5.addConstraint(Sketcher.Constraint("DistanceY", -1, 1, 0, 3, 102.669521))
doc.recompute()
hole3 = doc.addObject("PartDesign::Hole", "Hole002")
body.addObject(hole3)
hole3.Profile = sketch5
hole3.ThreadType = "None"
hole3.Diameter = Q("1.5 in")
hole3.DepthType = "ThroughAll"

sketch6 = doc.addObject("Sketcher::SketchObject", "Sketch005")
body.addObject(sketch6)
sketch6.Placement = App.Placement(V(299.681681, 229.953842, 0), App.Rotation(V(-0.608761429, 0.79335334, 0), V(0, 0, 1), V(0.79335334, 0.608761429, 0), "ZXY"))
sketch6.addGeometry(Part.Circle(V(0, 102.669521, 0), V(0, 0, 1), 19.05), False)
sketch6.addConstraint(Sketcher.Constraint("PointOnObject", 0, 3, -2))
sketch6.addConstraint(Sketcher.Constraint("Diameter", 0, Q("1.5 in")))
sketch6.addConstraint(Sketcher.Constraint("DistanceY", -1, 1, 0, 3, 102.669521))
doc.recompute()
hole4 = doc.addObject("PartDesign::Hole", "Hole003")
body.addObject(hole4)
hole4.Profile = sketch6
hole4.ThreadType = "None"
hole4.Diameter = Q("1.5 in")
hole4.DepthType = "ThroughAll"

sketch7 = doc.addObject("Sketcher::SketchObject", "Sketch006")
body.addObject(sketch7)
sketch7.Placement = App.Placement(V(348.986709, 144.555028, 0), App.Rotation(V(-0.382683432, 0.923879532, 0), V(0, 0, 0.999999999), V(0.923879532, 0.382683432, 0), "ZXY"))
sketch7.addGeometry(Part.Circle(V(0, 102.669521, 0), V(0, 0, 1), 19.05), False)
sketch7.addConstraint(Sketcher.Constraint("PointOnObject", 0, 3, -2))
sketch7.addConstraint(Sketcher.Constraint("Diameter", 0, Q("1.5 in")))
sketch7.addConstraint(Sketcher.Constraint("DistanceY", -1, 1, 0, 3, 102.669521))
doc.recompute()
hole5 = doc.addObject("PartDesign::Hole", "Hole004")
body.addObject(hole5)
hole5.Profile = sketch7
hole5.ThreadType = "None"
hole5.Diameter = Q("1.5 in")
hole5.DepthType = "ThroughAll"

sketch8 = doc.addObject("Sketcher::SketchObject", "Sketch007")
body.addObject(sketch8)
sketch8.Placement = App.Placement(V(374.50887, 49.305028, 0), App.Rotation(V(-0.130526192, 0.991444861, 0), V(0, 0, 0.999999999), V(0.991444861, 0.130526192, 0), "ZXY"))
sketch8.addGeometry(Part.Circle(V(0, 102.669521, 0), V(0, 0, 1), 19.05), False)
sketch8.addConstraint(Sketcher.Constraint("PointOnObject", 0, 3, -2))
sketch8.addConstraint(Sketcher.Constraint("Diameter", 0, Q("1.5 in")))
sketch8.addConstraint(Sketcher.Constraint("DistanceY", -1, 1, 0, 3, 102.669521))
doc.recompute()
hole6 = doc.addObject("PartDesign::Hole", "Hole005")
body.addObject(hole6)
hole6.Profile = sketch8
hole6.ThreadType = "None"
hole6.Diameter = Q("1.5 in")
hole6.DepthType = "ThroughAll"

sketch9 = doc.addObject("Sketcher::SketchObject", "Sketch008")
body.addObject(sketch9)
sketch9.Placement = App.Placement(V(374.50887, -49.305028, 0), App.Rotation(V(0.130526192, 0.991444861, 0), V(0, 0, 0.999999999), V(0.991444861, -0.130526192, 0), "ZXY"))
sketch9.addGeometry(Part.Circle(V(0, 102.669521, 0), V(0, 0, 1), 19.05), False)
sketch9.addConstraint(Sketcher.Constraint("PointOnObject", 0, 3, -2))
sketch9.addConstraint(Sketcher.Constraint("Diameter", 0, Q("1.5 in")))
sketch9.addConstraint(Sketcher.Constraint("DistanceY", -1, 1, 0, 3, 102.669521))
doc.recompute()
hole7 = doc.addObject("PartDesign::Hole", "Hole006")
body.addObject(hole7)
hole7.Profile = sketch9
hole7.ThreadType = "None"
hole7.Diameter = Q("1.5 in")
hole7.DepthType = "ThroughAll"

sketch10 = doc.addObject("Sketcher::SketchObject", "Sketch009")
body.addObject(sketch10)
sketch10.Placement = App.Placement(V(348.986709, -144.555028, 0), App.Rotation(V(0.382683432, 0.923879532, 0), V(0, 0, 0.999999999), V(0.923879532, -0.382683432, 0), "ZXY"))
sketch10.addGeometry(Part.Circle(V(0, 102.669521, 0), V(0, 0, 1), 19.05), False)
sketch10.addConstraint(Sketcher.Constraint("PointOnObject", 0, 3, -2))
sketch10.addConstraint(Sketcher.Constraint("Diameter", 0, Q("1.5 in")))
sketch10.addConstraint(Sketcher.Constraint("DistanceY", -1, 1, 0, 3, 102.669521))
doc.recompute()
hole8 = doc.addObject("PartDesign::Hole", "Hole007")
body.addObject(hole8)
hole8.Profile = sketch10
hole8.ThreadType = "None"
hole8.Diameter = Q("1.5 in")
hole8.DepthType = "ThroughAll"

sketch11 = doc.addObject("Sketcher::SketchObject", "Sketch010")
body.addObject(sketch11)
sketch11.Placement = App.Placement(V(299.681681, -229.953842, 0), App.Rotation(V(0.608761429, 0.79335334, 0), V(0, 0, 1), V(0.79335334, -0.608761429, 0), "ZXY"))
sketch11.addGeometry(Part.Circle(V(0, 102.669521, 0), V(0, 0, 1), 19.05), False)
sketch11.addConstraint(Sketcher.Constraint("PointOnObject", 0, 3, -2))
sketch11.addConstraint(Sketcher.Constraint("Diameter", 0, Q("1.5 in")))
sketch11.addConstraint(Sketcher.Constraint("DistanceY", -1, 1, 0, 3, 102.669521))
doc.recompute()
hole9 = doc.addObject("PartDesign::Hole", "Hole008")
body.addObject(hole9)
hole9.Profile = sketch11
hole9.ThreadType = "None"
hole9.Diameter = Q("1.5 in")
hole9.DepthType = "ThroughAll"

sketch12 = doc.addObject("Sketcher::SketchObject", "Sketch011")
body.addObject(sketch12)
sketch12.Placement = App.Placement(V(229.953842, -299.681681, 0), App.Rotation(V(0.79335334, 0.608761429, 0), V(0, 0, 1), V(0.608761429, -0.79335334, 0), "ZXY"))
sketch12.addGeometry(Part.Circle(V(0, 102.669521, 0), V(0, 0, 1), 19.05), False)
sketch12.addConstraint(Sketcher.Constraint("PointOnObject", 0, 3, -2))
sketch12.addConstraint(Sketcher.Constraint("Diameter", 0, Q("1.5 in")))
sketch12.addConstraint(Sketcher.Constraint("DistanceY", -1, 1, 0, 3, 102.669521))
doc.recompute()
hole10 = doc.addObject("PartDesign::Hole", "Hole009")
body.addObject(hole10)
hole10.Profile = sketch12
hole10.ThreadType = "None"
hole10.Diameter = Q("1.5 in")
hole10.DepthType = "ThroughAll"

sketch13 = doc.addObject("Sketcher::SketchObject", "Sketch012")
body.addObject(sketch13)
sketch13.Placement = App.Placement(V(144.555028, -348.986709, 0), App.Rotation(V(0.923879532, 0.382683432, 0), V(0, 0, 0.999999999), V(0.382683432, -0.923879532, 0), "ZXY"))
sketch13.addGeometry(Part.Circle(V(0, 102.669521, 0), V(0, 0, 1), 19.05), False)
sketch13.addConstraint(Sketcher.Constraint("PointOnObject", 0, 3, -2))
sketch13.addConstraint(Sketcher.Constraint("Diameter", 0, Q("1.5 in")))
sketch13.addConstraint(Sketcher.Constraint("DistanceY", -1, 1, 0, 3, 102.669521))
doc.recompute()
hole11 = doc.addObject("PartDesign::Hole", "Hole010")
body.addObject(hole11)
hole11.Profile = sketch13
hole11.ThreadType = "None"
hole11.Diameter = Q("1.5 in")
hole11.DepthType = "ThroughAll"

sketch14 = doc.addObject("Sketcher::SketchObject", "Sketch013")
body.addObject(sketch14)
sketch14.Placement = App.Placement(V(49.305028, -374.50887, 0), App.Rotation(V(0.991444861, 0.130526192, 0), V(0, 0, 0.999999999), V(0.130526192, -0.991444861, 0), "ZXY"))
sketch14.addGeometry(Part.Circle(V(0, 102.669521, 0), V(0, 0, 1), 19.05), False)
sketch14.addConstraint(Sketcher.Constraint("PointOnObject", 0, 3, -2))
sketch14.addConstraint(Sketcher.Constraint("Diameter", 0, Q("1.5 in")))
sketch14.addConstraint(Sketcher.Constraint("DistanceY", -1, 1, 0, 3, 102.669521))
doc.recompute()
hole12 = doc.addObject("PartDesign::Hole", "Hole011")
body.addObject(hole12)
hole12.Profile = sketch14
hole12.ThreadType = "None"
hole12.Diameter = Q("1.5 in")
hole12.DepthType = "ThroughAll"

doc.recompute()
